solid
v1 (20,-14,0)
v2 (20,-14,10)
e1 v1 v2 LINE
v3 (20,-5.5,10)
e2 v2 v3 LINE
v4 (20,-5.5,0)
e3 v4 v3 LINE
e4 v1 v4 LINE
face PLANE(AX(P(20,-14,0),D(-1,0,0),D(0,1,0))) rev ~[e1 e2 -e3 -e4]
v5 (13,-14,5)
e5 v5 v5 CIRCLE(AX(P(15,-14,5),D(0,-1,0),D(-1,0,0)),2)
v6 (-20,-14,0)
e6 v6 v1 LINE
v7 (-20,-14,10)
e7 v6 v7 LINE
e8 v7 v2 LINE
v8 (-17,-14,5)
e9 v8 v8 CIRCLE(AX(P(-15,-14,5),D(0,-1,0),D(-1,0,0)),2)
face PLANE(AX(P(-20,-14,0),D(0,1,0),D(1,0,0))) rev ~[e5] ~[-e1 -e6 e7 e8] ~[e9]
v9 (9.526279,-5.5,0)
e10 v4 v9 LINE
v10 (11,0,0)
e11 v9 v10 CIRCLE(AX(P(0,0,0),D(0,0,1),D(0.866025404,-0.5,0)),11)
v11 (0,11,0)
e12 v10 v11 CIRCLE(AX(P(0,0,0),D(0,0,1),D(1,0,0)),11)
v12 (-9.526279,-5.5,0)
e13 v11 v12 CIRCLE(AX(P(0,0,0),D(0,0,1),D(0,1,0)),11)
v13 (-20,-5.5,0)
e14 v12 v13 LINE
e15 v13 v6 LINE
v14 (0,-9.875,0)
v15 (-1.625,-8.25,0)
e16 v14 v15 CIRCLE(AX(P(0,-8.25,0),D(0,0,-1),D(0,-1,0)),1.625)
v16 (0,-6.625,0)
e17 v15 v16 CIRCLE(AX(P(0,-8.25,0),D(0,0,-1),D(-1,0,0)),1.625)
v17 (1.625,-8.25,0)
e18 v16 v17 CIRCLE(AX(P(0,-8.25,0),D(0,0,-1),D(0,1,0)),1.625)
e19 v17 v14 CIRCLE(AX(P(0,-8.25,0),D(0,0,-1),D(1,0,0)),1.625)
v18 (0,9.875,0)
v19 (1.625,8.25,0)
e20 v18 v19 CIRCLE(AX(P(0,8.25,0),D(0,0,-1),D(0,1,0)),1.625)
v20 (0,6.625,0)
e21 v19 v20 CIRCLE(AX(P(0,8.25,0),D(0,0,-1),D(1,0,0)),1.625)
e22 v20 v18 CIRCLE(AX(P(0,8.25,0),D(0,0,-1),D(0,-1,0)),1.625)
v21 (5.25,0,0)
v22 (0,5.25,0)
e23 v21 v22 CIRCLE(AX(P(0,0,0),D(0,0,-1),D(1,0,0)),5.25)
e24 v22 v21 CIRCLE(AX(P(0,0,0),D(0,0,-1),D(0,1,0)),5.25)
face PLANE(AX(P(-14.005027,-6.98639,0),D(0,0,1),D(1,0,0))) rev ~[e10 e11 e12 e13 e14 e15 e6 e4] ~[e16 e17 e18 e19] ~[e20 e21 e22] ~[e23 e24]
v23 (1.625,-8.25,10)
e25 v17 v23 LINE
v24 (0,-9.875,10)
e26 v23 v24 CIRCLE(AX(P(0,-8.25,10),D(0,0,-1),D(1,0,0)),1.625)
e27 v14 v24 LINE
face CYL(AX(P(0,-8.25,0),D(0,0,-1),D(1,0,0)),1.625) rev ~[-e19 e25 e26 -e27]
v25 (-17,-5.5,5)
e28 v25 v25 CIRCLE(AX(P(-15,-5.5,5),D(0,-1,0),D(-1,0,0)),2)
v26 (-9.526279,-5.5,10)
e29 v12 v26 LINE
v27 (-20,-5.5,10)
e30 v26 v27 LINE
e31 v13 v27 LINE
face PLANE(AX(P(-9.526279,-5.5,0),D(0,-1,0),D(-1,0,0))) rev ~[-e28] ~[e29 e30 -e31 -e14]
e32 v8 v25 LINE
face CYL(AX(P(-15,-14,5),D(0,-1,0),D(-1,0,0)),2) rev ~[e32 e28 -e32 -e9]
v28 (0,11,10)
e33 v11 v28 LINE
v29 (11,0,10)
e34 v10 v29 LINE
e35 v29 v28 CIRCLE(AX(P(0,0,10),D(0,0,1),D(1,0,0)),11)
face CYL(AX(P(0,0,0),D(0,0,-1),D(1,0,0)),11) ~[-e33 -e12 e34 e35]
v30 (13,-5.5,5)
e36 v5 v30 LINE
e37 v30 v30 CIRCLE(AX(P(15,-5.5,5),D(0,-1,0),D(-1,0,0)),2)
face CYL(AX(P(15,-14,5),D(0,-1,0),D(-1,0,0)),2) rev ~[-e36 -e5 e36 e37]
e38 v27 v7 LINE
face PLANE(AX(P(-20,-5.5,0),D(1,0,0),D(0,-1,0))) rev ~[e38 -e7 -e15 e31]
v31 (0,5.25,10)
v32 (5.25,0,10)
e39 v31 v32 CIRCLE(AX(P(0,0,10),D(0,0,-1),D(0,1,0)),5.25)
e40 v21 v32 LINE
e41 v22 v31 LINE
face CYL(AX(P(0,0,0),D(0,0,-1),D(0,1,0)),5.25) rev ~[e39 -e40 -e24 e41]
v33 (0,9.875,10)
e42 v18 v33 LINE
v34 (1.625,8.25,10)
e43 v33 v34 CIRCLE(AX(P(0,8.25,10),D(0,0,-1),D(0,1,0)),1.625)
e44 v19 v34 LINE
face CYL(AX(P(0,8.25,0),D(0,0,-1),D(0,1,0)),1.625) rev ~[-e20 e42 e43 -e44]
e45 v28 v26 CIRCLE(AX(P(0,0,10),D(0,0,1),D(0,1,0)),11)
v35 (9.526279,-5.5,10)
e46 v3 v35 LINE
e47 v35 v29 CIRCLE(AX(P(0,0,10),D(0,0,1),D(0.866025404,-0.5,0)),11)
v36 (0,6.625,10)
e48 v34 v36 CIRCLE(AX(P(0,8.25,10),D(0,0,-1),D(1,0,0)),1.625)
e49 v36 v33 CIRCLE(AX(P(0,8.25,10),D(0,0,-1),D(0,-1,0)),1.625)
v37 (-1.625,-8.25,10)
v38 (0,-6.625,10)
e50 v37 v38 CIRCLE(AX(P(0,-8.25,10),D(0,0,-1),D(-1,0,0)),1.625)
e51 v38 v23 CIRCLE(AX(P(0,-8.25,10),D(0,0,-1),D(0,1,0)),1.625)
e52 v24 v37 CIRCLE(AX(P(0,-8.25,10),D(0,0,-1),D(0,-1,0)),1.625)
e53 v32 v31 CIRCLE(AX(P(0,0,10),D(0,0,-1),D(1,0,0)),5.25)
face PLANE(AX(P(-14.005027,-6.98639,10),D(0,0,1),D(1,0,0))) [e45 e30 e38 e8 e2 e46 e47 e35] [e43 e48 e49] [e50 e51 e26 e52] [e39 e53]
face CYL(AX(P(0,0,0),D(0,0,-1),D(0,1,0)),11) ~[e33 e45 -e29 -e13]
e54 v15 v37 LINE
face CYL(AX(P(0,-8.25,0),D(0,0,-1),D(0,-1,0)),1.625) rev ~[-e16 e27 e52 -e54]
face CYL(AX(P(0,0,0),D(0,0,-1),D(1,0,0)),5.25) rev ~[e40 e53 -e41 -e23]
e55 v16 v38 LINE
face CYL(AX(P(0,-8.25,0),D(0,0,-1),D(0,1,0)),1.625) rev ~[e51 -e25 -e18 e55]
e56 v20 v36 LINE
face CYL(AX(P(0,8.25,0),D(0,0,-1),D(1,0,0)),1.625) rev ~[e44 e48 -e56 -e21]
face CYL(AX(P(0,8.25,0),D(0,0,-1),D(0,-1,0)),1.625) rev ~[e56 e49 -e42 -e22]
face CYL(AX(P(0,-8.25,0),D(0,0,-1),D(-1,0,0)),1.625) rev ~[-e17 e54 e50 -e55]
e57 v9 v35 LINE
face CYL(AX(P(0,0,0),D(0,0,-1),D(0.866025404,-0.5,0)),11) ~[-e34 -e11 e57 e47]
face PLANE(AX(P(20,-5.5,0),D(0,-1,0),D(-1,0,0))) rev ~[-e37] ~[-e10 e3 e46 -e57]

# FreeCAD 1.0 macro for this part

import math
import FreeCAD as App
import Part
import Sketcher
from FreeCAD import Vector
Q = App.Units.Quantity

doc = App.newDocument("Part")
body = doc.addObject("PartDesign::Body", "Body")

# Sketch on XY plane
sketch1 = body.newObject("Sketcher::SketchObject", "Sketch")
sketch1.AttachmentSupport = (doc.getObject("XY_Plane"), [""])
sketch1.MapMode = "FlatFace"
sketch1.addGeometry([
    Part.ArcOfCircle(Part.Circle(Vector(0, 0, 0), Vector(0, 0, 1), 11), math.radians(90), math.radians(210)),  # 0
    Part.LineSegment(Vector(-9.5, -5.5, 0), Vector(-20, -5.5, 0)),  # 1
    Part.LineSegment(Vector(-20, -5.5, 0), Vector(-20, -14, 0)),  # 2
    Part.LineSegment(Vector(-20, -14, 0), Vector(20, -14, 0)),  # 3
    Part.LineSegment(Vector(20, -14, 0), Vector(20, -5.5, 0)),  # 4
    Part.LineSegment(Vector(20, -5.5, 0), Vector(9.5, -5.5, 0)),  # 5
    Part.ArcOfCircle(Part.Circle(Vector(0, 0, 0), Vector(0, 0, 1), 11), math.radians(-30), math.radians(0)),  # 6
    Part.ArcOfCircle(Part.Circle(Vector(0, 0, 0), Vector(0, 0, 1), 11), math.radians(0), math.radians(90)),  # 7
    Part.ArcOfCircle(Part.Circle(Vector(0, -8.2, 0), Vector(0, 0, 1), 1.6), math.radians(-90), math.radians(0)),  # 8
    Part.ArcOfCircle(Part.Circle(Vector(0, -8.2, 0), Vector(0, 0, 1), 1.6), math.radians(180), math.radians(270)),  # 9
    Part.ArcOfCircle(Part.Circle(Vector(0, -8.2, 0), Vector(0, 0, 1), 1.6), math.radians(90), math.radians(180)),  # 10
    Part.ArcOfCircle(Part.Circle(Vector(0, -8.2, 0), Vector(0, 0, 1), 1.6), math.radians(0), math.radians(90)),  # 11
    Part.ArcOfCircle(Part.Circle(Vector(0, 0, 0), Vector(0, 0, 1), 5.2), math.radians(90), math.radians(360)),  # 12
    Part.ArcOfCircle(Part.Circle(Vector(0, 0, 0), Vector(0, 0, 1), 5.2), math.radians(0), math.radians(90)),  # 13
    Part.ArcOfCircle(Part.Circle(Vector(0, 8.2, 0), Vector(0, 0, 1), 1.6), math.radians(90), math.radians(270)),  # 14
    Part.ArcOfCircle(Part.Circle(Vector(0, 8.2, 0), Vector(0, 0, 1), 1.6), math.radians(0), math.radians(90)),  # 15
    Part.ArcOfCircle(Part.Circle(Vector(0, 8.2, 0), Vector(0, 0, 1), 1.6), math.radians(-90), math.radians(0)),  # 16
], False)
sketch1.addConstraint([
    Sketcher.Constraint("Coincident", 0, 2, 1, 1),
    Sketcher.Constraint("Coincident", 1, 2, 2, 1),
    Sketcher.Constraint("Coincident", 2, 2, 3, 1),
    Sketcher.Constraint("Coincident", 3, 2, 4, 1),
    Sketcher.Constraint("Coincident", 4, 2, 5, 1),
    Sketcher.Constraint("Coincident", 5, 2, 6, 1),
    Sketcher.Constraint("Tangent", 6, 2, 7, 1),
    Sketcher.Constraint("Tangent", 7, 2, 0, 1),
    Sketcher.Constraint("Tangent", 8, 1, 9, 2),
    Sketcher.Constraint("Tangent", 9, 1, 10, 2),
    Sketcher.Constraint("Tangent", 10, 1, 11, 2),
    Sketcher.Constraint("Tangent", 11, 1, 8, 2),
    Sketcher.Constraint("Tangent", 12, 1, 13, 2),
    Sketcher.Constraint("Coincident", 13, 1, 12, 2),
    Sketcher.Constraint("Tangent", 14, 1, 15, 2),
    Sketcher.Constraint("Tangent", 15, 1, 16, 2),
    Sketcher.Constraint("Tangent", 16, 1, 14, 2),
    Sketcher.Constraint("Horizontal", 1),
    Sketcher.Constraint("Vertical", 2),
    Sketcher.Constraint("Horizontal", 3),
    Sketcher.Constraint("Vertical", 4),
    Sketcher.Constraint("Horizontal", 5),
    Sketcher.Constraint("Coincident", 0, 3, -1, 1),
    Sketcher.Constraint("Coincident", 6, 3, -1, 1),
    Sketcher.Constraint("Coincident", 12, 3, -1, 1),
    Sketcher.Constraint("Equal", 8, 9),
    Sketcher.Constraint("Equal", 11, 14),
    Sketcher.Constraint("Symmetric", 8, 3, 14, 3, -1, 1),
    Sketcher.Constraint("Symmetric", 1, 2, 4, 2, -2),
    Sketcher.Constraint("Symmetric", 9, 1, 11, 1, -2),
    Sketcher.Constraint("PointOnObject", 6, 2, -1),
    Sketcher.Constraint("PointOnObject", 7, 2, -2),
    Sketcher.Constraint("PointOnObject", 8, 1, -2),
    Sketcher.Constraint("PointOnObject", 10, 1, -2),
    Sketcher.Constraint("PointOnObject", 12, 1, -2),
    Sketcher.Constraint("PointOnObject", 13, 1, -1),
    Sketcher.Constraint("PointOnObject", 14, 1, -2),
    Sketcher.Constraint("PointOnObject", 16, 1, -2),
    Sketcher.Constraint("Horizontal", 11, 3, 9, 1),
    Sketcher.Constraint("Horizontal", 16, 3, 15, 1),
    Sketcher.Constraint("Radius", 0, Q("11 mm")),
    Sketcher.Constraint("DistanceX", 3, 1, 3, 2, Q("40 mm")),
    Sketcher.Constraint("Radius", 12, Q("5.25 mm")),
    Sketcher.Constraint("DistanceY", 2, 2, 2, 1, Q("8.5 mm")),
    Sketcher.Constraint("DistanceY", 2, 2, -1, 1, Q("14 mm")),
    Sketcher.Constraint("Radius", 8, Q("1.625 mm")),
    Sketcher.Constraint("DistanceY", 12, 1, 14, 3, Q("3 mm")),
])
pad1 = body.newObject("PartDesign::Pad", "Pad")
pad1.Profile = sketch1
pad1.Length = 10

# Sketch on XZ plane
sketch2 = body.newObject("Sketcher::SketchObject", "Sketch001")
sketch2.AttachmentSupport = (doc.getObject("XZ_Plane"), [""])
sketch2.MapMode = "FlatFace"
sketch2.AttachmentOffset = App.Placement(Vector(0, 0, 14), App.Rotation())
sketch2.addGeometry([
    Part.Circle(Vector(-15, 5, 0), Vector(0, 0, 1), 2),
    Part.Circle(Vector(15, 5, 0), Vector(0, 0, 1), 2),
], False)
sketch2.addConstraint([
    Sketcher.Constraint("Equal", 0, 1),
    Sketcher.Constraint("Symmetric", 0, 3, 1, 3, -2),
    Sketcher.Constraint("Diameter", 0, Q("4 mm")),
    Sketcher.Constraint("DistanceX", 0, 3, -1, 1, Q("15 mm")),
    Sketcher.Constraint("DistanceY", -1, 1, 0, 3, Q("5 mm")),
])
pocket1 = body.newObject("PartDesign::Pocket", "Pocket")
pocket1.Profile = sketch2
pocket1.Length = 10

doc.recompute()
